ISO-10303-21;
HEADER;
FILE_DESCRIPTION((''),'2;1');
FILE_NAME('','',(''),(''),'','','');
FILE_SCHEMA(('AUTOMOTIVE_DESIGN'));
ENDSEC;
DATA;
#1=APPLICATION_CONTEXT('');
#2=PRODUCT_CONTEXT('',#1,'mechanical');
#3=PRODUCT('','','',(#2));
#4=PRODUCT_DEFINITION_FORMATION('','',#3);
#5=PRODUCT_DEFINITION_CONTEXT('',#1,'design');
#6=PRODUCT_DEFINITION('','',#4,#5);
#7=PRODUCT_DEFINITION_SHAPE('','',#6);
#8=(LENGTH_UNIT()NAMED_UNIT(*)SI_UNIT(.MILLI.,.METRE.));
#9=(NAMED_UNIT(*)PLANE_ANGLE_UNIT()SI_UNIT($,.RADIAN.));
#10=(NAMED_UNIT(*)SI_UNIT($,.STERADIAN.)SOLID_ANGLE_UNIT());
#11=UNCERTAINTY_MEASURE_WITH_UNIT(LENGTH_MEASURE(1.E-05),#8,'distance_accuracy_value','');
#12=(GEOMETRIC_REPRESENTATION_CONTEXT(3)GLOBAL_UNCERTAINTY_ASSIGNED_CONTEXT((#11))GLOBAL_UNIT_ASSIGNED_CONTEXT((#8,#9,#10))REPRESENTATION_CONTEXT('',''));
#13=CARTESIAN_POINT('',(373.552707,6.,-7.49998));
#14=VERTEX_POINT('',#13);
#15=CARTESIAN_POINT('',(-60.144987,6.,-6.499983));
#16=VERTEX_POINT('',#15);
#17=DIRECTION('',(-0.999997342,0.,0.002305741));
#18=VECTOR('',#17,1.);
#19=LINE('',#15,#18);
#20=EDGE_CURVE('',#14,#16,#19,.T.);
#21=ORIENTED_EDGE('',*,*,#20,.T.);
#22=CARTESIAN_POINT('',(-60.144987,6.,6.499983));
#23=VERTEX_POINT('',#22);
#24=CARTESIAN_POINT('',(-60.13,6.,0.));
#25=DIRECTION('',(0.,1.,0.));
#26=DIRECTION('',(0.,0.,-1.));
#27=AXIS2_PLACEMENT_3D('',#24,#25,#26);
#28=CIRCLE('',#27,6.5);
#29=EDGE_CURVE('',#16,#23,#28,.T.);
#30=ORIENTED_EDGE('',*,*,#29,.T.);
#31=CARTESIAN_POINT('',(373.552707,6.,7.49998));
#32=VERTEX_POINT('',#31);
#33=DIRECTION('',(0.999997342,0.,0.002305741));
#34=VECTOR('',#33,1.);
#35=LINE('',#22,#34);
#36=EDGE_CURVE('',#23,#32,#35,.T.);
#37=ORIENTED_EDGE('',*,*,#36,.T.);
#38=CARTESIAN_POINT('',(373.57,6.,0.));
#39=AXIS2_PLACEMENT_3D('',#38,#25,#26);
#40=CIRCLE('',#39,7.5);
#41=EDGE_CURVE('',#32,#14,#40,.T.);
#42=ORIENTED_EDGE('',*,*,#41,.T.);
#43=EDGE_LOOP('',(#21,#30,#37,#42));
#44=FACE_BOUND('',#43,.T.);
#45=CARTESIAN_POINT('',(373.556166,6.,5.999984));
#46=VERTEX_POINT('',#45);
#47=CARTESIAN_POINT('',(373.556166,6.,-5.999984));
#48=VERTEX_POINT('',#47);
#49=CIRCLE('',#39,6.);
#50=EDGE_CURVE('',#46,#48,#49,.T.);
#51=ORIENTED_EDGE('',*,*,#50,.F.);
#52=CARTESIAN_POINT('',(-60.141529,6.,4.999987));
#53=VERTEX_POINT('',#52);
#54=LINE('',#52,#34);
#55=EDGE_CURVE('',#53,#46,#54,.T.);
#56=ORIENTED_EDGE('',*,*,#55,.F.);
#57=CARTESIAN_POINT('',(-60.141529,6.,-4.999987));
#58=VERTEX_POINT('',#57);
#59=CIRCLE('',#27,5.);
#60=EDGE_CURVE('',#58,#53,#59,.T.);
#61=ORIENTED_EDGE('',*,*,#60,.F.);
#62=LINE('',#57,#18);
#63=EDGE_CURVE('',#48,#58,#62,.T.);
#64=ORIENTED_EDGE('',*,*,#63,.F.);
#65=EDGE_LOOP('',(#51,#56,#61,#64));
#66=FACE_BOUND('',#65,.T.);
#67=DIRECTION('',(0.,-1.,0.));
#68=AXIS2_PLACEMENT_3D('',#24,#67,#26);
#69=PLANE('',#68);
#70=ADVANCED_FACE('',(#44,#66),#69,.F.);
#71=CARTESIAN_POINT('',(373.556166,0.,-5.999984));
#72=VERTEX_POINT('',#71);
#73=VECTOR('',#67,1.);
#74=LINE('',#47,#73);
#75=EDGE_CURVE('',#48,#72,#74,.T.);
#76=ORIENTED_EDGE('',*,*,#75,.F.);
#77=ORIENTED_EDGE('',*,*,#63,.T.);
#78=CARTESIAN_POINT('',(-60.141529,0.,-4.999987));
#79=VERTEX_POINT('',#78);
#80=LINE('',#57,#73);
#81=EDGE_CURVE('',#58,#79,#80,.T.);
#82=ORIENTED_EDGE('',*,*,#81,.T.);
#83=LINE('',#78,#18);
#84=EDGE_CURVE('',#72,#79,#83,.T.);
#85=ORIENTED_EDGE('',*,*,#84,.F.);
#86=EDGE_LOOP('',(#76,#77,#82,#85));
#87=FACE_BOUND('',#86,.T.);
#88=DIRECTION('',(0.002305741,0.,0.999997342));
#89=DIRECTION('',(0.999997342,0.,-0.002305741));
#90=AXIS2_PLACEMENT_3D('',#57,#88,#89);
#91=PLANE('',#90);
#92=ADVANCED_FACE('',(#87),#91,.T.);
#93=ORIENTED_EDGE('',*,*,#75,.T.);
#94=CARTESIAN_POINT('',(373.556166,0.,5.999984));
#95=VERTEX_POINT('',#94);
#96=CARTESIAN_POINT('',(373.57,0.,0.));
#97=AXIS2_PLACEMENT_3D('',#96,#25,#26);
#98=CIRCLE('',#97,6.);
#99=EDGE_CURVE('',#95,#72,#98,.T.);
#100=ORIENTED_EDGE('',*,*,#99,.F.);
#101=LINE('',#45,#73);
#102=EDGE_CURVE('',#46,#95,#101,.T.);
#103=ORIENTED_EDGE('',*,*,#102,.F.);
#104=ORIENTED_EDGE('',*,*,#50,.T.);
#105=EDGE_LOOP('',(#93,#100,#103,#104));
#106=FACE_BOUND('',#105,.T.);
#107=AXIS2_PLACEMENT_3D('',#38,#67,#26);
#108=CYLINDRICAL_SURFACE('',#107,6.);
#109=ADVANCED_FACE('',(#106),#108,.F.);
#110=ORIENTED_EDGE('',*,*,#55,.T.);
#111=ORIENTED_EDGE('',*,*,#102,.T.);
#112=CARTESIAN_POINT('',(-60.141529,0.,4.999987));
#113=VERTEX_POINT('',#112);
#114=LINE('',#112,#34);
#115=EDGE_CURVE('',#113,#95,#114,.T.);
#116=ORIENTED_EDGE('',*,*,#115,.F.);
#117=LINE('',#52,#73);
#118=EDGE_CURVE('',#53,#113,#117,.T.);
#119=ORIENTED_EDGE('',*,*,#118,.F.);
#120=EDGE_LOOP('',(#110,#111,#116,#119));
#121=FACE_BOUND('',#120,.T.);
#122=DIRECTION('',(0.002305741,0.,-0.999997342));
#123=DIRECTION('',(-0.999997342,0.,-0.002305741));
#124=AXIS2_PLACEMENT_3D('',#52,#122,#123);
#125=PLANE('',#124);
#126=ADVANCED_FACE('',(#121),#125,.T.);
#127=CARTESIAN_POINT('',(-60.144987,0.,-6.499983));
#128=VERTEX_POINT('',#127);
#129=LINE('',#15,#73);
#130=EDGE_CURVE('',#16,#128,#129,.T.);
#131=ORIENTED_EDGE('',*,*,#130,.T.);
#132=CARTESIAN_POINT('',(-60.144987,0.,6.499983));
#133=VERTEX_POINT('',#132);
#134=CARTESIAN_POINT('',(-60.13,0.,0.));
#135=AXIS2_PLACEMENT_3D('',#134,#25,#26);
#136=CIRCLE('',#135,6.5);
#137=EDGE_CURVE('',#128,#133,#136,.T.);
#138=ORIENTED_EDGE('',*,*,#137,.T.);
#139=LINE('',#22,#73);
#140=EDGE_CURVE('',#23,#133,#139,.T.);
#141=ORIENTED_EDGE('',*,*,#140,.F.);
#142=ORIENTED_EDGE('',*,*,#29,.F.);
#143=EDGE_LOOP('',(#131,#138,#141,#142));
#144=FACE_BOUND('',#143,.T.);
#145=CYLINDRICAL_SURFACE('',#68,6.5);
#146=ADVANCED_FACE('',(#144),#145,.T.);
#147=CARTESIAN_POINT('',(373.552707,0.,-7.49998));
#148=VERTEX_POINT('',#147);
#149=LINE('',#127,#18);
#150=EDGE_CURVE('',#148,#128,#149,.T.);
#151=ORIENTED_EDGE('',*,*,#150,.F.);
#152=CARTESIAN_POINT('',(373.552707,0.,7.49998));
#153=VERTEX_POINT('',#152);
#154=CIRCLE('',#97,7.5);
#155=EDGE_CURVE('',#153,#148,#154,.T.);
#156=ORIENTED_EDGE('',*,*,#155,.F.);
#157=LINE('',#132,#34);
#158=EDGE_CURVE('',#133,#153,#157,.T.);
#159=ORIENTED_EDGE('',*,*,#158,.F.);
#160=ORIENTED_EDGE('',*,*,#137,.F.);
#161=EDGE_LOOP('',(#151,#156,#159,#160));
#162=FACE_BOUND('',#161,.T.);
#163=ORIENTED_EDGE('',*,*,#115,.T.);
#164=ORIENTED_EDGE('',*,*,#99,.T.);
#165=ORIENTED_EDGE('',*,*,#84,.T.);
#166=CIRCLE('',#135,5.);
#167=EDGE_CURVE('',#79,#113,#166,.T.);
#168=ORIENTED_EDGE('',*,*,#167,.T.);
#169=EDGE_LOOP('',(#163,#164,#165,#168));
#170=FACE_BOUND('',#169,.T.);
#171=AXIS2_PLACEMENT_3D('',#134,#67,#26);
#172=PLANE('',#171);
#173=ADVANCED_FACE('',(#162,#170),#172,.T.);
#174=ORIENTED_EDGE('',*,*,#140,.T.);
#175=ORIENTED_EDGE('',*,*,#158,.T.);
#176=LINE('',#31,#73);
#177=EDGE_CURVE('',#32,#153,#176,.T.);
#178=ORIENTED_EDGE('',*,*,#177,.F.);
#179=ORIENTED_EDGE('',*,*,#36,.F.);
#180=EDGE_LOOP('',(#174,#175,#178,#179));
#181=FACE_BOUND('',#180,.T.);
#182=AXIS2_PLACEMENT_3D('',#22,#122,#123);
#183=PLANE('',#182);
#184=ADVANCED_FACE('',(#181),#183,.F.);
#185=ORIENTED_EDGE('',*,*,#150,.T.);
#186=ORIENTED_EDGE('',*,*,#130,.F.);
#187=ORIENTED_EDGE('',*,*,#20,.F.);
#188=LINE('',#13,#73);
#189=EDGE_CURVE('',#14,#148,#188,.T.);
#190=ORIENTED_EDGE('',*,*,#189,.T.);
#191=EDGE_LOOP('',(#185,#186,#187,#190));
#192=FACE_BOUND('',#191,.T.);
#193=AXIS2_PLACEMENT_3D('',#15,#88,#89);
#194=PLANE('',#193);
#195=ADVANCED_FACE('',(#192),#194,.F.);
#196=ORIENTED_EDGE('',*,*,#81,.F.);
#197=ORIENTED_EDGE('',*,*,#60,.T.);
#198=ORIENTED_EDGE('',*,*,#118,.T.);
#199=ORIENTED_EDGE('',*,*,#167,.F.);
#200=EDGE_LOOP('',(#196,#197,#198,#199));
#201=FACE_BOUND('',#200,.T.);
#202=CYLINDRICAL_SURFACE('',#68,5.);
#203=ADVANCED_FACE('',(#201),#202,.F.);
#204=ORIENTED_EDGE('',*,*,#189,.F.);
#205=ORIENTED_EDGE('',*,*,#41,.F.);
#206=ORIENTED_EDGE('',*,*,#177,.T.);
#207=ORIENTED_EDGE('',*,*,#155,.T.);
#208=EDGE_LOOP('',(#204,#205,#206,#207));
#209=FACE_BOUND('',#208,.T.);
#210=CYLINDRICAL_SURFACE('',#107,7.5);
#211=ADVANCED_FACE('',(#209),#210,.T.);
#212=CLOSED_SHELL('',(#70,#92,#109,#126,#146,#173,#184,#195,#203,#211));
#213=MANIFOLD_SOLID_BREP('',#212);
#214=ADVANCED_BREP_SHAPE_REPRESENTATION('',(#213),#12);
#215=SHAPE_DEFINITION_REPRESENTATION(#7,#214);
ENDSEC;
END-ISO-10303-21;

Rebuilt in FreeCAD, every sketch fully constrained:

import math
import FreeCAD as App
import Part
import Sketcher
from FreeCAD import Vector

doc = App.newDocument("Part")
params = doc.addObject("Spreadsheet::Sheet", "Params")
for row, (alias, value) in enumerate([
    ("sketch1_radius", "6 mm"),
    ("sketch1_radius2", "5 mm"),
    ("sketch1_radius3", "6.5 mm"),
    ("pad1_length", "6 mm"),
], start=1):
    params.set(f"A{row}", alias)
    params.set(f"B{row}", "=" + value)
    params.setAlias(f"B{row}", alias)

body = doc.addObject("PartDesign::Body", "Body")

sketch1 = body.newObject("Sketcher::SketchObject", "Sketch")
sketch1.AttachmentSupport = (doc.getObject("XZ_Plane"), [""])
sketch1.MapMode = "FlatFace"
sketch1.addGeometry([
    Part.LineSegment(Vector(374, -7, 0), Vector(-60, -6, 0)),
    Part.ArcOfCircle(Part.Circle(Vector(-60, 0, 0), Vector(0, 0, 1), 6), math.radians(90), math.radians(270)),
    Part.LineSegment(Vector(-60, 6, 0), Vector(374, 7, 0)),
    Part.ArcOfCircle(Part.Circle(Vector(374, 0, 0), Vector(0, 0, 1), 8), math.radians(-90), math.radians(90)),
    Part.LineSegment(Vector(-60, -5, 0), Vector(374, -6, 0)),
    Part.ArcOfCircle(Part.Circle(Vector(374, 0, 0), Vector(0, 0, 1), 6), math.radians(-90), math.radians(90)),
    Part.LineSegment(Vector(374, 6, 0), Vector(-60, 5, 0)),
    Part.ArcOfCircle(Part.Circle(Vector(-60, 0, 0), Vector(0, 0, 1), 5), math.radians(90), math.radians(270)),
], False)
sketch1.addConstraint([
    Sketcher.Constraint("Tangent", 0, 2, 1, 2),
    Sketcher.Constraint("Tangent", 1, 1, 2, 1),
    Sketcher.Constraint("Tangent", 2, 2, 3, 2),
    Sketcher.Constraint("Tangent", 3, 1, 0, 1),
    Sketcher.Constraint("Tangent", 4, 2, 5, 1),
    Sketcher.Constraint("Tangent", 5, 2, 6, 1),
    Sketcher.Constraint("Tangent", 6, 2, 7, 1),
    Sketcher.Constraint("Tangent", 7, 2, 4, 1),
    Sketcher.Constraint("Coincident", 5, 3, 3, 3),
    Sketcher.Constraint("Coincident", 7, 3, 1, 3),
    Sketcher.Constraint("Symmetric", 0, 2, 1, 1, -1),
    Sketcher.Constraint("Parallel", 0, 4),
    Sketcher.Constraint("Radius", 5, 6.0),
    Sketcher.Constraint("Radius", 7, 5.0),
    Sketcher.Constraint("Radius", 1, 6.5),
    Sketcher.Constraint("DistanceX", 1, 3, 3, 3, 433.7),
    Sketcher.Constraint("DistanceX", 1, 3, -1, 1, 60.13),
])
sketch1.setExpression("Constraints[12]", "Params.sketch1_radius")
sketch1.setExpression("Constraints[13]", "Params.sketch1_radius2")
sketch1.setExpression("Constraints[14]", "Params.sketch1_radius3")
pad1 = body.newObject("PartDesign::Pad", "Pad")
pad1.Profile = sketch1
pad1.setExpression("Length", "Params.pad1_length")
pad1.Reversed = True

doc.recompute()
